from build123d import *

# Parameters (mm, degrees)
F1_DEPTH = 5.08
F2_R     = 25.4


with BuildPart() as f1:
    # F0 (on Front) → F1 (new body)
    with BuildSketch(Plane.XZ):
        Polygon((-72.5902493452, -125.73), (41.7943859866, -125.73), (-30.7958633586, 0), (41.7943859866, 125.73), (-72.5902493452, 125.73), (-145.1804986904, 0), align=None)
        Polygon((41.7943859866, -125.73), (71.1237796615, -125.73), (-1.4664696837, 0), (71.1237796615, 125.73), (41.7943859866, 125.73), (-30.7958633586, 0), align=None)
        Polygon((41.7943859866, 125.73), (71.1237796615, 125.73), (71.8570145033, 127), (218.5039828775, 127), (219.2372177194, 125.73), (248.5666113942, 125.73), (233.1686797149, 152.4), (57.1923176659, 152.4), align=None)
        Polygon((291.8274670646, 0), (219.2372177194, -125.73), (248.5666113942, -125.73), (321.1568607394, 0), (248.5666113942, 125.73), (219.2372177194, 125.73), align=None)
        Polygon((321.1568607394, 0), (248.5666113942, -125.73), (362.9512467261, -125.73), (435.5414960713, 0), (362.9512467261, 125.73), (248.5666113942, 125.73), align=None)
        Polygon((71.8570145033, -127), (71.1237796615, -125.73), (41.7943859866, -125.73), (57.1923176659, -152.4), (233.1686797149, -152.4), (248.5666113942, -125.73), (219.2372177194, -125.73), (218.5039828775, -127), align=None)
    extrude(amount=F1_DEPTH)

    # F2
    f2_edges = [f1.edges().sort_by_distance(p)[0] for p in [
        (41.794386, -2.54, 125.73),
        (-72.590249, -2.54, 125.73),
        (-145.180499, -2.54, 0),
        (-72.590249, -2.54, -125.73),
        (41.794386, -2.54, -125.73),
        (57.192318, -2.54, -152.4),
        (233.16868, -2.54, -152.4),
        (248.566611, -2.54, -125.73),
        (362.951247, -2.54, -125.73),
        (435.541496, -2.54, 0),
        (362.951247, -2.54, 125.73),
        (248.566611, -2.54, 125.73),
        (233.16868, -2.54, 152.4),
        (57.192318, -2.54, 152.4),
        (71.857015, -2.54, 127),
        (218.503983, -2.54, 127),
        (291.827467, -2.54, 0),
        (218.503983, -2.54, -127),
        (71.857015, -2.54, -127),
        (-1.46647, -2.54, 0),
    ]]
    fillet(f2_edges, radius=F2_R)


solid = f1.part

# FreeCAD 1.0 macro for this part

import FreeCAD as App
import Part
import Sketcher
from FreeCAD import Vector
Q = App.Units.Quantity


def edges_at(feature, points):
    """Names of the edges that pass closest to the given points."""
    edges = feature.Shape.Edges
    near = lambda p: min(range(len(edges)), key=lambda i: edges[i].distToShape(Part.Vertex(*p))[0])
    return sorted({f"Edge{near(p) + 1}" for p in points})


def add_polygon(sketch, points):
    """Adds a closed chain of lines whose ends are joined by coincident constraints."""
    first, n = sketch.GeometryCount, len(points)
    for a, b in zip(points, points[1:] + points[:1]):
        sketch.addGeometry(Part.LineSegment(App.Vector(*a, 0), App.Vector(*b, 0)), False)
    for i in range(n):
        sketch.addConstraint(Sketcher.Constraint("Coincident", first + i, 2, first + (i + 1) % n, 1))

doc = App.newDocument("Part")
params = doc.addObject("Spreadsheet::Sheet", "Params")
for row, (alias, value) in enumerate([
    ("pad1_length", "0.2 in"),
    ("fillet_radius", "1 in"),
], start=1):
    params.set(f"A{row}", alias)
    params.set(f"B{row}", "=" + value)
    params.setAlias(f"B{row}", alias)

body = doc.addObject("PartDesign::Body", "Body")

# Sketch on XZ plane
sketch1 = doc.addObject("Sketcher::SketchObject", "Sketch")
body.addObject(sketch1)
sketch1.AttachmentSupport = (doc.XZ_Plane, [""])
sketch1.MapMode = "FlatFace"
add_polygon(sketch1, [(-72.590249, -125.73), (41.794386, -125.73), (57.192318, -152.4), (233.16868, -152.4), (248.566611, -125.73), (362.951247, -125.73), (435.541496, 0), (362.951247, 125.73), (248.566611, 125.73), (233.16868, 152.4), (57.192318, 152.4), (41.794386, 125.73), (-72.590249, 125.73), (-145.180499, 0)])  # lines 0-13
add_polygon(sketch1, [(71.12378, -125.73), (-1.46647, 0), (71.12378, 125.73), (71.857015, 127), (218.503983, 127), (219.237218, 125.73), (291.827467, 0), (219.237218, -125.73), (218.503983, -127), (71.857015, -127)])  # lines 14-23
sketch1.addConstraint(Sketcher.Constraint("Horizontal", 0))
sketch1.addConstraint(Sketcher.Constraint("Horizontal", 2))
sketch1.addConstraint(Sketcher.Constraint("Horizontal", 4))
sketch1.addConstraint(Sketcher.Constraint("Horizontal", 7))
sketch1.addConstraint(Sketcher.Constraint("Horizontal", 9))
sketch1.addConstraint(Sketcher.Constraint("Horizontal", 11))
sketch1.addConstraint(Sketcher.Constraint("Horizontal", 17))
sketch1.addConstraint(Sketcher.Constraint("Horizontal", 22))
sketch1.addConstraint(Sketcher.Constraint("Symmetric", 4, 2, 6, 2, -1))
sketch1.addConstraint(Sketcher.Constraint("Symmetric", 2, 2, 8, 2, -1))
sketch1.addConstraint(Sketcher.Constraint("Symmetric", 0, 2, 10, 2, -1))
sketch1.addConstraint(Sketcher.Constraint("Symmetric", 18, 2, 20, 2, -1))
sketch1.addConstraint(Sketcher.Constraint("Symmetric", 17, 2, 21, 2, -1))
sketch1.addConstraint(Sketcher.Constraint("Symmetric", 15, 2, 23, 2, -1))
sketch1.addConstraint(Sketcher.Constraint("PointOnObject", 5, 2, -1))
sketch1.addConstraint(Sketcher.Constraint("PointOnObject", 12, 2, -1))
sketch1.addConstraint(Sketcher.Constraint("PointOnObject", 14, 2, -1))
sketch1.addConstraint(Sketcher.Constraint("PointOnObject", 19, 2, -1))
sketch1.addConstraint(Sketcher.Constraint("Parallel", 3, 5))
sketch1.addConstraint(Sketcher.Constraint("Parallel", 1, 6))
sketch1.addConstraint(Sketcher.Constraint("Parallel", 6, 8))
sketch1.addConstraint(Sketcher.Constraint("Parallel", 5, 10))
sketch1.addConstraint(Sketcher.Constraint("Parallel", 10, 12))
sketch1.addConstraint(Sketcher.Constraint("Parallel", 8, 13))
sketch1.addConstraint(Sketcher.Constraint("Parallel", 13, 14))
sketch1.addConstraint(Sketcher.Constraint("Parallel", 15, 16))
sketch1.addConstraint(Sketcher.Constraint("Parallel", 14, 18))
sketch1.addConstraint(Sketcher.Constraint("Parallel", 18, 19))
sketch1.addConstraint(Sketcher.Constraint("Parallel", 19, 23))
sketch1.addConstraint(Sketcher.Constraint("Horizontal", 0, 2, 3, 2))
sketch1.addConstraint(Sketcher.Constraint("Horizontal", 11, 2, 15, 2))
sketch1.addConstraint(Sketcher.Constraint("Horizontal", 15, 2, 18, 2))
sketch1.addConstraint(Sketcher.Constraint("Equal", 0, 4))
sketch1.addConstraint(Sketcher.Constraint("DistanceY", 1, 2, -1, 1, Q("6 in")))
sketch1.addConstraint(Sketcher.Constraint("DistanceY", -1, 1, 16, 2, Q("5 in")))
sketch1.addConstraint(Sketcher.Constraint("Angle", 1, Q("-60 deg")))
sketch1.addConstraint(Sketcher.Constraint("DistanceY", 4, 2, 6, 2, Q("9.9 in")))
sketch1.addConstraint(Sketcher.Constraint("DistanceX", 11, 2, 16, 2, Q("5.6869002 in")))
sketch1.addConstraint(Sketcher.Constraint("DistanceX", 17, 2, 6, 2, Q("5.6869002 in")))
sketch1.addConstraint(Sketcher.Constraint("DistanceX", 17, 1, 17, 2, 146.646968))
sketch1.addConstraint(Sketcher.Constraint("DistanceX", 12, 2, -1, 1, 145.180499))
sketch1.addConstraint(Sketcher.Constraint("DistanceX", 15, 2, 8, 2, 162.0449))
pad1 = doc.addObject("PartDesign::Pad", "Pad")
body.addObject(pad1)
pad1.Profile = sketch1
pad1.setExpression("Length", "Params.pad1_length")
doc.recompute()

fillet = doc.addObject("PartDesign::Fillet", "Fillet")
body.addObject(fillet)
fillet.Base = (pad1, edges_at(pad1, [
    (41.794, -2.54, 125.73),
    (-72.59, -2.54, 125.73),
    (-145.18, -2.54, 0),
    (-72.59, -2.54, -125.73),
    (41.794, -2.54, -125.73),
    (57.192, -2.54, -152.4),
    (233.169, -2.54, -152.4),
    (248.567, -2.54, -125.73),
    (362.951, -2.54, -125.73),
    (435.541, -2.54, 0),
    (362.951, -2.54, 125.73),
    (248.567, -2.54, 125.73),
    (233.169, -2.54, 152.4),
    (57.192, -2.54, 152.4),
    (71.857, -2.54, 127),
    (218.504, -2.54, 127),
    (291.827, -2.54, 0),
    (218.504, -2.54, -127),
    (71.857, -2.54, -127),
    (-1.466, -2.54, 0),
]))
fillet.setExpression("Radius", "Params.fillet_radius")

doc.recompute()
